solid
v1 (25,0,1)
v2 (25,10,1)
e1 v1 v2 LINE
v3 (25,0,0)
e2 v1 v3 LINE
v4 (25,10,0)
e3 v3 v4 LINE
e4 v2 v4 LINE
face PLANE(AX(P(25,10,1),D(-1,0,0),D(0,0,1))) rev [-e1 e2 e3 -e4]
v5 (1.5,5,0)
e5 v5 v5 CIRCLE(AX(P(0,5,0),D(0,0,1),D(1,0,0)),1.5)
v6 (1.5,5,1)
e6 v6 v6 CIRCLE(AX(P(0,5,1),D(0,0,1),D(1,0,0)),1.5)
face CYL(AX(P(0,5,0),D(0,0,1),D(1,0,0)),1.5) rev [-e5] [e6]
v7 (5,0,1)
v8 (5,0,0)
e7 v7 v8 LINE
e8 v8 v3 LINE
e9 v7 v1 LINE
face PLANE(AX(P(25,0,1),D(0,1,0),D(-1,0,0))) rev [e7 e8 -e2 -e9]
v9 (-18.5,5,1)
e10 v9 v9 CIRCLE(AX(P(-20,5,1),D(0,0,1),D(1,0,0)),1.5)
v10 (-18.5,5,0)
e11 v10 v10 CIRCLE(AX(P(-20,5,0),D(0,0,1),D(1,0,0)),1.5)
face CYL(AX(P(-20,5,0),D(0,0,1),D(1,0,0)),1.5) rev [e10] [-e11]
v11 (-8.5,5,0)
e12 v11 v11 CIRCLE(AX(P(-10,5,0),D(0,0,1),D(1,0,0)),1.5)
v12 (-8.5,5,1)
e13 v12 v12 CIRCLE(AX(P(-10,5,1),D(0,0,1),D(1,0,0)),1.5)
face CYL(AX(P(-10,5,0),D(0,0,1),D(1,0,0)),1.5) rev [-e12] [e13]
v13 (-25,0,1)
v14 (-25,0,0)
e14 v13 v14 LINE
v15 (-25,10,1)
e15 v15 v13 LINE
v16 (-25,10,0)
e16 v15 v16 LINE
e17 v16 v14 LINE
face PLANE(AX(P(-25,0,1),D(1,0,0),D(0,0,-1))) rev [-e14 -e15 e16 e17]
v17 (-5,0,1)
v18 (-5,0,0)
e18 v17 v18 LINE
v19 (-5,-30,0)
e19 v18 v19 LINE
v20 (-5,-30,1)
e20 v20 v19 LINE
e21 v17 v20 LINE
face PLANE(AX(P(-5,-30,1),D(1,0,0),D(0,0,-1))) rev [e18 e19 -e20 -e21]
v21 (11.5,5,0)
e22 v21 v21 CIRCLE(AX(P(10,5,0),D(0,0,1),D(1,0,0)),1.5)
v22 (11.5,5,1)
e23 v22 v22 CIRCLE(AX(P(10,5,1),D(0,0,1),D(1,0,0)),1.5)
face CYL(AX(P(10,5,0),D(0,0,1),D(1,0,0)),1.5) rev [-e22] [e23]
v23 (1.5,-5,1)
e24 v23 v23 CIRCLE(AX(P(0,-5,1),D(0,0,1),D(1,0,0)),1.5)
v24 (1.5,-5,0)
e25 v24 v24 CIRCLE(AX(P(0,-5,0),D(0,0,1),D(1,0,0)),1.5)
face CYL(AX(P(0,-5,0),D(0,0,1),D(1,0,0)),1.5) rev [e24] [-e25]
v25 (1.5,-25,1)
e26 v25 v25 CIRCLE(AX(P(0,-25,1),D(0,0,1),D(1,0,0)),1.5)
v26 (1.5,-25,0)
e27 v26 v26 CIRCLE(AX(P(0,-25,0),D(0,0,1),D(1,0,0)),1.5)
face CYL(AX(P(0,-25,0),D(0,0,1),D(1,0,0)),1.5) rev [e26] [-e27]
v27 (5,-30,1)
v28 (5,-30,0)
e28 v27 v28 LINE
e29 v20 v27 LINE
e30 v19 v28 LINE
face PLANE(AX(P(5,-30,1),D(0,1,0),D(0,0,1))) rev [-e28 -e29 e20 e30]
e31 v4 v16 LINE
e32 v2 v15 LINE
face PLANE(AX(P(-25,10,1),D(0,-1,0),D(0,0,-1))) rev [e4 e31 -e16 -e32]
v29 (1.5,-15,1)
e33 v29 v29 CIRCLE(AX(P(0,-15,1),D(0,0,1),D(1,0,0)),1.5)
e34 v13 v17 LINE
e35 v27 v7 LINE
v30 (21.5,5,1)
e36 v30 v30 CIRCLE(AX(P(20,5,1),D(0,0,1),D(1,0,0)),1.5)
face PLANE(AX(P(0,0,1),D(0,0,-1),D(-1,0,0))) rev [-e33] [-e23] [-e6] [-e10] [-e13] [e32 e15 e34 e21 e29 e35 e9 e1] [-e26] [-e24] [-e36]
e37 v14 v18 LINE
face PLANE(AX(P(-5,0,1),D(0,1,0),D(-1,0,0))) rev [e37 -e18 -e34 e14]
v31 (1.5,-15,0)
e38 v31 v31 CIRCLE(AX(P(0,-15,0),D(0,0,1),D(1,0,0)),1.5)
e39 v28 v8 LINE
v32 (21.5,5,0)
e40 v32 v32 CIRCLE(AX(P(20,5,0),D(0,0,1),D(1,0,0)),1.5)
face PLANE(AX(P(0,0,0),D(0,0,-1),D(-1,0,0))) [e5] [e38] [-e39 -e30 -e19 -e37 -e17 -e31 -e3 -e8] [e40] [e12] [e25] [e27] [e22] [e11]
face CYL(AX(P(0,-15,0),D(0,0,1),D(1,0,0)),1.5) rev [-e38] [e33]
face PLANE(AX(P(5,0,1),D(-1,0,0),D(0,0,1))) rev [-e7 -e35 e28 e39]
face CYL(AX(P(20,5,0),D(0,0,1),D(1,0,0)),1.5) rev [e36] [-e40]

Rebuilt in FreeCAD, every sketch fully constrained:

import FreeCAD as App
import Part
import Sketcher

V = App.Vector


def add_polygon(sketch, points):
    """Adds a closed chain of lines whose ends are joined by coincident constraints."""
    first, n = sketch.GeometryCount, len(points)
    for a, b in zip(points, points[1:] + points[:1]):
        sketch.addGeometry(Part.LineSegment(App.Vector(*a, 0), App.Vector(*b, 0)), False)
    for i in range(n):
        sketch.addConstraint(Sketcher.Constraint("Coincident", first + i, 2, first + (i + 1) % n, 1))

doc = App.newDocument("Part")
body = doc.addObject("PartDesign::Body", "Body")

# Sketch on XY plane
sketch1 = body.newObject("Sketcher::SketchObject", "Sketch")
sketch1.AttachmentSupport = (doc.getObject("XY_Plane"), [""])
sketch1.MapMode = "FlatFace"
add_polygon(sketch1, [(25, 10), (-25, 10), (-25, 0), (-5, 0), (-5, -30), (5, -30), (5, 0), (25, 0)])  # lines 0-7
sketch1.addConstraint([
    Sketcher.Constraint("Horizontal", 0),
    Sketcher.Constraint("Vertical", 1),
    Sketcher.Constraint("Horizontal", 2),
    Sketcher.Constraint("Vertical", 3),
    Sketcher.Constraint("Horizontal", 4),
    Sketcher.Constraint("Vertical", 5),
    Sketcher.Constraint("Horizontal", 6),
    Sketcher.Constraint("Vertical", 7),
    Sketcher.Constraint("Symmetric", 2, 2, 5, 2, -1, 1),
    Sketcher.Constraint("Symmetric", 1, 2, 6, 2, -2),
    Sketcher.Constraint("Equal", 4, 1),
    Sketcher.Constraint("DistanceX", 0, 2, 0, 1, 50.0),
    Sketcher.Constraint("DistanceX", 2, 1, 2, 2, 20.0),
    Sketcher.Constraint("DistanceY", 3, 2, 3, 1, 30.0),
])
pad1 = body.newObject("PartDesign::Pad", "Pad")
pad1.Profile = sketch1
pad1.Length = 1

# Sketch on XY plane
sketch2 = body.newObject("Sketcher::SketchObject", "Sketch001")
sketch2.AttachmentSupport = (doc.getObject("XY_Plane"), [""])
sketch2.MapMode = "FlatFace"
sketch2.AttachmentOffset = App.Placement(V(0, 0, 1), App.Rotation())
sketch2.addGeometry(Part.Circle(V(0, 5, 0), V(0, 0, 1), 1.5), False)
sketch2.addConstraint([
    Sketcher.Constraint("PointOnObject", 0, 3, -2),
    Sketcher.Constraint("Diameter", 0, 3.0),
    Sketcher.Constraint("DistanceY", -1, 1, 0, 3, 5.0),
])
pocket1 = body.newObject("PartDesign::Pocket", "Pocket")
pocket1.Profile = sketch2
pocket1.Type = "ThroughAll"
doc.recompute()

linearpattern = body.newObject("PartDesign::LinearPattern", "LinearPattern")
linearpattern.Originals = [pocket1]
linearpattern.Direction = (doc.getObject("X_Axis"), [""])
linearpattern.Mode = "offset"
linearpattern.Offset = 10
linearpattern.Occurrences = 3
linearpattern.Reversed = True
body.Tip = linearpattern
doc.recompute()

linearpattern2 = body.newObject("PartDesign::LinearPattern", "LinearPattern001")
linearpattern2.Originals = [pocket1]
linearpattern2.Direction = (doc.getObject("X_Axis"), [""])
linearpattern2.Mode = "offset"
linearpattern2.Offset = 10
linearpattern2.Occurrences = 3
body.Tip = linearpattern2
doc.recompute()

linearpattern3 = body.newObject("PartDesign::LinearPattern", "LinearPattern002")
linearpattern3.Originals = [pocket1]
linearpattern3.Direction = (doc.getObject("Y_Axis"), [""])
linearpattern3.Mode = "offset"
linearpattern3.Offset = 10
linearpattern3.Occurrences = 4
linearpattern3.Reversed = True
body.Tip = linearpattern3

doc.recompute()
